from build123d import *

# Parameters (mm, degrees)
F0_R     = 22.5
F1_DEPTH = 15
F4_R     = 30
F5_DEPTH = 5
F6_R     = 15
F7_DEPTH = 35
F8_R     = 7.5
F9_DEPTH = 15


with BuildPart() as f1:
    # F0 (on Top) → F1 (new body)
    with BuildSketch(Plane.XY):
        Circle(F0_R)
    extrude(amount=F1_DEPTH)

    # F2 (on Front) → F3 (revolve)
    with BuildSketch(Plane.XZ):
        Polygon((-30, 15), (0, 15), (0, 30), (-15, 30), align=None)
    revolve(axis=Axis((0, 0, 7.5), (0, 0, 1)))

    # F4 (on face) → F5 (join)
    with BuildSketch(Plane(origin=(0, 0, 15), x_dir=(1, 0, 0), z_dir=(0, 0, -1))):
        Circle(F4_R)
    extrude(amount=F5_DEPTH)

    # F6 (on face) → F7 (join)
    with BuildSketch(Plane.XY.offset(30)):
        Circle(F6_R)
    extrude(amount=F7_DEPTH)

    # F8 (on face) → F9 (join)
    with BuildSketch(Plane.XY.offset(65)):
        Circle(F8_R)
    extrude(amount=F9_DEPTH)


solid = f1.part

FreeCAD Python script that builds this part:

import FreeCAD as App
import Part
import Sketcher
from FreeCAD import Vector


def add_polygon(sketch, points):
    """Adds a closed chain of lines whose ends are joined by coincident constraints."""
    first, n = sketch.GeometryCount, len(points)
    for a, b in zip(points, points[1:] + points[:1]):
        sketch.addGeometry(Part.LineSegment(App.Vector(*a, 0), App.Vector(*b, 0)), False)
    for i in range(n):
        sketch.addConstraint(Sketcher.Constraint("Coincident", first + i, 2, first + (i + 1) % n, 1))

doc = App.newDocument("Part")
body = doc.addObject("PartDesign::Body", "Body")

sketch1 = body.newObject("Sketcher::SketchObject", "Sketch")
sketch1.AttachmentSupport = (doc.getObject("XY_Plane"), [""])
sketch1.MapMode = "FlatFace"
sketch1.addGeometry(Part.Circle(Vector(0, 0, 0), Vector(0, 0, 1), 22), False)
sketch1.addConstraint([
    Sketcher.Constraint("Coincident", 0, 3, -1, 1),
    Sketcher.Constraint("Diameter", 0, 45.0),
])
pad1 = body.newObject("PartDesign::Pad", "Pad")
pad1.Profile = sketch1
pad1.Length = 15

sketch2 = body.newObject("Sketcher::SketchObject", "Sketch001")
sketch2.AttachmentSupport = (doc.getObject("XZ_Plane"), [""])
sketch2.MapMode = "FlatFace"
add_polygon(sketch2, [(-30, 15), (0, 15), (0, 30), (-15, 30)])
sketch2.addConstraint([
    Sketcher.Constraint("Horizontal", 0),
    Sketcher.Constraint("Vertical", 1),
    Sketcher.Constraint("Horizontal", 2),
    Sketcher.Constraint("PointOnObject", 0, 2, -2),
    Sketcher.Constraint("Equal", 2, 1),
    Sketcher.Constraint("DistanceX", 0, 1, 0, 2, 30.0),
    Sketcher.Constraint("DistanceX", 2, 2, 2, 1, 15.0),
    Sketcher.Constraint("DistanceY", -1, 1, 0, 2, 15.0),
])
revolution = body.newObject("PartDesign::Revolution", "Revolution")
revolution.Profile = sketch2
revolution.ReferenceAxis = (sketch2, ["V_Axis"])
revolution.Angle = 360

sketch3 = body.newObject("Sketcher::SketchObject", "Sketch002")
sketch3.AttachmentSupport = (doc.getObject("XY_Plane"), [""])
sketch3.MapMode = "FlatFace"
sketch3.AttachmentOffset = App.Placement(Vector(0, 0, 15), App.Rotation())
sketch3.addGeometry(Part.Circle(Vector(0, 0, 0), Vector(0, 0, 1), 30), False)
sketch3.addConstraint([
    Sketcher.Constraint("Coincident", 0, 3, -1, 1),
    Sketcher.Constraint("Diameter", 0, 60.0),
])
pad2 = body.newObject("PartDesign::Pad", "Pad001")
pad2.Profile = sketch3
pad2.Length = 5
pad2.Reversed = True

sketch4 = body.newObject("Sketcher::SketchObject", "Sketch003")
sketch4.AttachmentSupport = (doc.getObject("XY_Plane"), [""])
sketch4.MapMode = "FlatFace"
sketch4.AttachmentOffset = App.Placement(Vector(0, 0, 30), App.Rotation())
sketch4.addGeometry(Part.Circle(Vector(0, 0, 0), Vector(0, 0, 1), 15), False)
sketch4.addConstraint([
    Sketcher.Constraint("Coincident", 0, 3, -1, 1),
    Sketcher.Constraint("Diameter", 0, 30.0),
])
pad3 = body.newObject("PartDesign::Pad", "Pad002")
pad3.Profile = sketch4
pad3.Length = 35

sketch5 = body.newObject("Sketcher::SketchObject", "Sketch004")
sketch5.AttachmentSupport = (doc.getObject("XY_Plane"), [""])
sketch5.MapMode = "FlatFace"
sketch5.AttachmentOffset = App.Placement(Vector(0, 0, 65), App.Rotation())
sketch5.addGeometry(Part.Circle(Vector(0, 0, 0), Vector(0, 0, 1), 8), False)
sketch5.addConstraint([
    Sketcher.Constraint("Coincident", 0, 3, -1, 1),
    Sketcher.Constraint("Diameter", 0, 15.0),
])
pad4 = body.newObject("PartDesign::Pad", "Pad003")
pad4.Profile = sketch5
pad4.Length = 15

doc.recompute()
